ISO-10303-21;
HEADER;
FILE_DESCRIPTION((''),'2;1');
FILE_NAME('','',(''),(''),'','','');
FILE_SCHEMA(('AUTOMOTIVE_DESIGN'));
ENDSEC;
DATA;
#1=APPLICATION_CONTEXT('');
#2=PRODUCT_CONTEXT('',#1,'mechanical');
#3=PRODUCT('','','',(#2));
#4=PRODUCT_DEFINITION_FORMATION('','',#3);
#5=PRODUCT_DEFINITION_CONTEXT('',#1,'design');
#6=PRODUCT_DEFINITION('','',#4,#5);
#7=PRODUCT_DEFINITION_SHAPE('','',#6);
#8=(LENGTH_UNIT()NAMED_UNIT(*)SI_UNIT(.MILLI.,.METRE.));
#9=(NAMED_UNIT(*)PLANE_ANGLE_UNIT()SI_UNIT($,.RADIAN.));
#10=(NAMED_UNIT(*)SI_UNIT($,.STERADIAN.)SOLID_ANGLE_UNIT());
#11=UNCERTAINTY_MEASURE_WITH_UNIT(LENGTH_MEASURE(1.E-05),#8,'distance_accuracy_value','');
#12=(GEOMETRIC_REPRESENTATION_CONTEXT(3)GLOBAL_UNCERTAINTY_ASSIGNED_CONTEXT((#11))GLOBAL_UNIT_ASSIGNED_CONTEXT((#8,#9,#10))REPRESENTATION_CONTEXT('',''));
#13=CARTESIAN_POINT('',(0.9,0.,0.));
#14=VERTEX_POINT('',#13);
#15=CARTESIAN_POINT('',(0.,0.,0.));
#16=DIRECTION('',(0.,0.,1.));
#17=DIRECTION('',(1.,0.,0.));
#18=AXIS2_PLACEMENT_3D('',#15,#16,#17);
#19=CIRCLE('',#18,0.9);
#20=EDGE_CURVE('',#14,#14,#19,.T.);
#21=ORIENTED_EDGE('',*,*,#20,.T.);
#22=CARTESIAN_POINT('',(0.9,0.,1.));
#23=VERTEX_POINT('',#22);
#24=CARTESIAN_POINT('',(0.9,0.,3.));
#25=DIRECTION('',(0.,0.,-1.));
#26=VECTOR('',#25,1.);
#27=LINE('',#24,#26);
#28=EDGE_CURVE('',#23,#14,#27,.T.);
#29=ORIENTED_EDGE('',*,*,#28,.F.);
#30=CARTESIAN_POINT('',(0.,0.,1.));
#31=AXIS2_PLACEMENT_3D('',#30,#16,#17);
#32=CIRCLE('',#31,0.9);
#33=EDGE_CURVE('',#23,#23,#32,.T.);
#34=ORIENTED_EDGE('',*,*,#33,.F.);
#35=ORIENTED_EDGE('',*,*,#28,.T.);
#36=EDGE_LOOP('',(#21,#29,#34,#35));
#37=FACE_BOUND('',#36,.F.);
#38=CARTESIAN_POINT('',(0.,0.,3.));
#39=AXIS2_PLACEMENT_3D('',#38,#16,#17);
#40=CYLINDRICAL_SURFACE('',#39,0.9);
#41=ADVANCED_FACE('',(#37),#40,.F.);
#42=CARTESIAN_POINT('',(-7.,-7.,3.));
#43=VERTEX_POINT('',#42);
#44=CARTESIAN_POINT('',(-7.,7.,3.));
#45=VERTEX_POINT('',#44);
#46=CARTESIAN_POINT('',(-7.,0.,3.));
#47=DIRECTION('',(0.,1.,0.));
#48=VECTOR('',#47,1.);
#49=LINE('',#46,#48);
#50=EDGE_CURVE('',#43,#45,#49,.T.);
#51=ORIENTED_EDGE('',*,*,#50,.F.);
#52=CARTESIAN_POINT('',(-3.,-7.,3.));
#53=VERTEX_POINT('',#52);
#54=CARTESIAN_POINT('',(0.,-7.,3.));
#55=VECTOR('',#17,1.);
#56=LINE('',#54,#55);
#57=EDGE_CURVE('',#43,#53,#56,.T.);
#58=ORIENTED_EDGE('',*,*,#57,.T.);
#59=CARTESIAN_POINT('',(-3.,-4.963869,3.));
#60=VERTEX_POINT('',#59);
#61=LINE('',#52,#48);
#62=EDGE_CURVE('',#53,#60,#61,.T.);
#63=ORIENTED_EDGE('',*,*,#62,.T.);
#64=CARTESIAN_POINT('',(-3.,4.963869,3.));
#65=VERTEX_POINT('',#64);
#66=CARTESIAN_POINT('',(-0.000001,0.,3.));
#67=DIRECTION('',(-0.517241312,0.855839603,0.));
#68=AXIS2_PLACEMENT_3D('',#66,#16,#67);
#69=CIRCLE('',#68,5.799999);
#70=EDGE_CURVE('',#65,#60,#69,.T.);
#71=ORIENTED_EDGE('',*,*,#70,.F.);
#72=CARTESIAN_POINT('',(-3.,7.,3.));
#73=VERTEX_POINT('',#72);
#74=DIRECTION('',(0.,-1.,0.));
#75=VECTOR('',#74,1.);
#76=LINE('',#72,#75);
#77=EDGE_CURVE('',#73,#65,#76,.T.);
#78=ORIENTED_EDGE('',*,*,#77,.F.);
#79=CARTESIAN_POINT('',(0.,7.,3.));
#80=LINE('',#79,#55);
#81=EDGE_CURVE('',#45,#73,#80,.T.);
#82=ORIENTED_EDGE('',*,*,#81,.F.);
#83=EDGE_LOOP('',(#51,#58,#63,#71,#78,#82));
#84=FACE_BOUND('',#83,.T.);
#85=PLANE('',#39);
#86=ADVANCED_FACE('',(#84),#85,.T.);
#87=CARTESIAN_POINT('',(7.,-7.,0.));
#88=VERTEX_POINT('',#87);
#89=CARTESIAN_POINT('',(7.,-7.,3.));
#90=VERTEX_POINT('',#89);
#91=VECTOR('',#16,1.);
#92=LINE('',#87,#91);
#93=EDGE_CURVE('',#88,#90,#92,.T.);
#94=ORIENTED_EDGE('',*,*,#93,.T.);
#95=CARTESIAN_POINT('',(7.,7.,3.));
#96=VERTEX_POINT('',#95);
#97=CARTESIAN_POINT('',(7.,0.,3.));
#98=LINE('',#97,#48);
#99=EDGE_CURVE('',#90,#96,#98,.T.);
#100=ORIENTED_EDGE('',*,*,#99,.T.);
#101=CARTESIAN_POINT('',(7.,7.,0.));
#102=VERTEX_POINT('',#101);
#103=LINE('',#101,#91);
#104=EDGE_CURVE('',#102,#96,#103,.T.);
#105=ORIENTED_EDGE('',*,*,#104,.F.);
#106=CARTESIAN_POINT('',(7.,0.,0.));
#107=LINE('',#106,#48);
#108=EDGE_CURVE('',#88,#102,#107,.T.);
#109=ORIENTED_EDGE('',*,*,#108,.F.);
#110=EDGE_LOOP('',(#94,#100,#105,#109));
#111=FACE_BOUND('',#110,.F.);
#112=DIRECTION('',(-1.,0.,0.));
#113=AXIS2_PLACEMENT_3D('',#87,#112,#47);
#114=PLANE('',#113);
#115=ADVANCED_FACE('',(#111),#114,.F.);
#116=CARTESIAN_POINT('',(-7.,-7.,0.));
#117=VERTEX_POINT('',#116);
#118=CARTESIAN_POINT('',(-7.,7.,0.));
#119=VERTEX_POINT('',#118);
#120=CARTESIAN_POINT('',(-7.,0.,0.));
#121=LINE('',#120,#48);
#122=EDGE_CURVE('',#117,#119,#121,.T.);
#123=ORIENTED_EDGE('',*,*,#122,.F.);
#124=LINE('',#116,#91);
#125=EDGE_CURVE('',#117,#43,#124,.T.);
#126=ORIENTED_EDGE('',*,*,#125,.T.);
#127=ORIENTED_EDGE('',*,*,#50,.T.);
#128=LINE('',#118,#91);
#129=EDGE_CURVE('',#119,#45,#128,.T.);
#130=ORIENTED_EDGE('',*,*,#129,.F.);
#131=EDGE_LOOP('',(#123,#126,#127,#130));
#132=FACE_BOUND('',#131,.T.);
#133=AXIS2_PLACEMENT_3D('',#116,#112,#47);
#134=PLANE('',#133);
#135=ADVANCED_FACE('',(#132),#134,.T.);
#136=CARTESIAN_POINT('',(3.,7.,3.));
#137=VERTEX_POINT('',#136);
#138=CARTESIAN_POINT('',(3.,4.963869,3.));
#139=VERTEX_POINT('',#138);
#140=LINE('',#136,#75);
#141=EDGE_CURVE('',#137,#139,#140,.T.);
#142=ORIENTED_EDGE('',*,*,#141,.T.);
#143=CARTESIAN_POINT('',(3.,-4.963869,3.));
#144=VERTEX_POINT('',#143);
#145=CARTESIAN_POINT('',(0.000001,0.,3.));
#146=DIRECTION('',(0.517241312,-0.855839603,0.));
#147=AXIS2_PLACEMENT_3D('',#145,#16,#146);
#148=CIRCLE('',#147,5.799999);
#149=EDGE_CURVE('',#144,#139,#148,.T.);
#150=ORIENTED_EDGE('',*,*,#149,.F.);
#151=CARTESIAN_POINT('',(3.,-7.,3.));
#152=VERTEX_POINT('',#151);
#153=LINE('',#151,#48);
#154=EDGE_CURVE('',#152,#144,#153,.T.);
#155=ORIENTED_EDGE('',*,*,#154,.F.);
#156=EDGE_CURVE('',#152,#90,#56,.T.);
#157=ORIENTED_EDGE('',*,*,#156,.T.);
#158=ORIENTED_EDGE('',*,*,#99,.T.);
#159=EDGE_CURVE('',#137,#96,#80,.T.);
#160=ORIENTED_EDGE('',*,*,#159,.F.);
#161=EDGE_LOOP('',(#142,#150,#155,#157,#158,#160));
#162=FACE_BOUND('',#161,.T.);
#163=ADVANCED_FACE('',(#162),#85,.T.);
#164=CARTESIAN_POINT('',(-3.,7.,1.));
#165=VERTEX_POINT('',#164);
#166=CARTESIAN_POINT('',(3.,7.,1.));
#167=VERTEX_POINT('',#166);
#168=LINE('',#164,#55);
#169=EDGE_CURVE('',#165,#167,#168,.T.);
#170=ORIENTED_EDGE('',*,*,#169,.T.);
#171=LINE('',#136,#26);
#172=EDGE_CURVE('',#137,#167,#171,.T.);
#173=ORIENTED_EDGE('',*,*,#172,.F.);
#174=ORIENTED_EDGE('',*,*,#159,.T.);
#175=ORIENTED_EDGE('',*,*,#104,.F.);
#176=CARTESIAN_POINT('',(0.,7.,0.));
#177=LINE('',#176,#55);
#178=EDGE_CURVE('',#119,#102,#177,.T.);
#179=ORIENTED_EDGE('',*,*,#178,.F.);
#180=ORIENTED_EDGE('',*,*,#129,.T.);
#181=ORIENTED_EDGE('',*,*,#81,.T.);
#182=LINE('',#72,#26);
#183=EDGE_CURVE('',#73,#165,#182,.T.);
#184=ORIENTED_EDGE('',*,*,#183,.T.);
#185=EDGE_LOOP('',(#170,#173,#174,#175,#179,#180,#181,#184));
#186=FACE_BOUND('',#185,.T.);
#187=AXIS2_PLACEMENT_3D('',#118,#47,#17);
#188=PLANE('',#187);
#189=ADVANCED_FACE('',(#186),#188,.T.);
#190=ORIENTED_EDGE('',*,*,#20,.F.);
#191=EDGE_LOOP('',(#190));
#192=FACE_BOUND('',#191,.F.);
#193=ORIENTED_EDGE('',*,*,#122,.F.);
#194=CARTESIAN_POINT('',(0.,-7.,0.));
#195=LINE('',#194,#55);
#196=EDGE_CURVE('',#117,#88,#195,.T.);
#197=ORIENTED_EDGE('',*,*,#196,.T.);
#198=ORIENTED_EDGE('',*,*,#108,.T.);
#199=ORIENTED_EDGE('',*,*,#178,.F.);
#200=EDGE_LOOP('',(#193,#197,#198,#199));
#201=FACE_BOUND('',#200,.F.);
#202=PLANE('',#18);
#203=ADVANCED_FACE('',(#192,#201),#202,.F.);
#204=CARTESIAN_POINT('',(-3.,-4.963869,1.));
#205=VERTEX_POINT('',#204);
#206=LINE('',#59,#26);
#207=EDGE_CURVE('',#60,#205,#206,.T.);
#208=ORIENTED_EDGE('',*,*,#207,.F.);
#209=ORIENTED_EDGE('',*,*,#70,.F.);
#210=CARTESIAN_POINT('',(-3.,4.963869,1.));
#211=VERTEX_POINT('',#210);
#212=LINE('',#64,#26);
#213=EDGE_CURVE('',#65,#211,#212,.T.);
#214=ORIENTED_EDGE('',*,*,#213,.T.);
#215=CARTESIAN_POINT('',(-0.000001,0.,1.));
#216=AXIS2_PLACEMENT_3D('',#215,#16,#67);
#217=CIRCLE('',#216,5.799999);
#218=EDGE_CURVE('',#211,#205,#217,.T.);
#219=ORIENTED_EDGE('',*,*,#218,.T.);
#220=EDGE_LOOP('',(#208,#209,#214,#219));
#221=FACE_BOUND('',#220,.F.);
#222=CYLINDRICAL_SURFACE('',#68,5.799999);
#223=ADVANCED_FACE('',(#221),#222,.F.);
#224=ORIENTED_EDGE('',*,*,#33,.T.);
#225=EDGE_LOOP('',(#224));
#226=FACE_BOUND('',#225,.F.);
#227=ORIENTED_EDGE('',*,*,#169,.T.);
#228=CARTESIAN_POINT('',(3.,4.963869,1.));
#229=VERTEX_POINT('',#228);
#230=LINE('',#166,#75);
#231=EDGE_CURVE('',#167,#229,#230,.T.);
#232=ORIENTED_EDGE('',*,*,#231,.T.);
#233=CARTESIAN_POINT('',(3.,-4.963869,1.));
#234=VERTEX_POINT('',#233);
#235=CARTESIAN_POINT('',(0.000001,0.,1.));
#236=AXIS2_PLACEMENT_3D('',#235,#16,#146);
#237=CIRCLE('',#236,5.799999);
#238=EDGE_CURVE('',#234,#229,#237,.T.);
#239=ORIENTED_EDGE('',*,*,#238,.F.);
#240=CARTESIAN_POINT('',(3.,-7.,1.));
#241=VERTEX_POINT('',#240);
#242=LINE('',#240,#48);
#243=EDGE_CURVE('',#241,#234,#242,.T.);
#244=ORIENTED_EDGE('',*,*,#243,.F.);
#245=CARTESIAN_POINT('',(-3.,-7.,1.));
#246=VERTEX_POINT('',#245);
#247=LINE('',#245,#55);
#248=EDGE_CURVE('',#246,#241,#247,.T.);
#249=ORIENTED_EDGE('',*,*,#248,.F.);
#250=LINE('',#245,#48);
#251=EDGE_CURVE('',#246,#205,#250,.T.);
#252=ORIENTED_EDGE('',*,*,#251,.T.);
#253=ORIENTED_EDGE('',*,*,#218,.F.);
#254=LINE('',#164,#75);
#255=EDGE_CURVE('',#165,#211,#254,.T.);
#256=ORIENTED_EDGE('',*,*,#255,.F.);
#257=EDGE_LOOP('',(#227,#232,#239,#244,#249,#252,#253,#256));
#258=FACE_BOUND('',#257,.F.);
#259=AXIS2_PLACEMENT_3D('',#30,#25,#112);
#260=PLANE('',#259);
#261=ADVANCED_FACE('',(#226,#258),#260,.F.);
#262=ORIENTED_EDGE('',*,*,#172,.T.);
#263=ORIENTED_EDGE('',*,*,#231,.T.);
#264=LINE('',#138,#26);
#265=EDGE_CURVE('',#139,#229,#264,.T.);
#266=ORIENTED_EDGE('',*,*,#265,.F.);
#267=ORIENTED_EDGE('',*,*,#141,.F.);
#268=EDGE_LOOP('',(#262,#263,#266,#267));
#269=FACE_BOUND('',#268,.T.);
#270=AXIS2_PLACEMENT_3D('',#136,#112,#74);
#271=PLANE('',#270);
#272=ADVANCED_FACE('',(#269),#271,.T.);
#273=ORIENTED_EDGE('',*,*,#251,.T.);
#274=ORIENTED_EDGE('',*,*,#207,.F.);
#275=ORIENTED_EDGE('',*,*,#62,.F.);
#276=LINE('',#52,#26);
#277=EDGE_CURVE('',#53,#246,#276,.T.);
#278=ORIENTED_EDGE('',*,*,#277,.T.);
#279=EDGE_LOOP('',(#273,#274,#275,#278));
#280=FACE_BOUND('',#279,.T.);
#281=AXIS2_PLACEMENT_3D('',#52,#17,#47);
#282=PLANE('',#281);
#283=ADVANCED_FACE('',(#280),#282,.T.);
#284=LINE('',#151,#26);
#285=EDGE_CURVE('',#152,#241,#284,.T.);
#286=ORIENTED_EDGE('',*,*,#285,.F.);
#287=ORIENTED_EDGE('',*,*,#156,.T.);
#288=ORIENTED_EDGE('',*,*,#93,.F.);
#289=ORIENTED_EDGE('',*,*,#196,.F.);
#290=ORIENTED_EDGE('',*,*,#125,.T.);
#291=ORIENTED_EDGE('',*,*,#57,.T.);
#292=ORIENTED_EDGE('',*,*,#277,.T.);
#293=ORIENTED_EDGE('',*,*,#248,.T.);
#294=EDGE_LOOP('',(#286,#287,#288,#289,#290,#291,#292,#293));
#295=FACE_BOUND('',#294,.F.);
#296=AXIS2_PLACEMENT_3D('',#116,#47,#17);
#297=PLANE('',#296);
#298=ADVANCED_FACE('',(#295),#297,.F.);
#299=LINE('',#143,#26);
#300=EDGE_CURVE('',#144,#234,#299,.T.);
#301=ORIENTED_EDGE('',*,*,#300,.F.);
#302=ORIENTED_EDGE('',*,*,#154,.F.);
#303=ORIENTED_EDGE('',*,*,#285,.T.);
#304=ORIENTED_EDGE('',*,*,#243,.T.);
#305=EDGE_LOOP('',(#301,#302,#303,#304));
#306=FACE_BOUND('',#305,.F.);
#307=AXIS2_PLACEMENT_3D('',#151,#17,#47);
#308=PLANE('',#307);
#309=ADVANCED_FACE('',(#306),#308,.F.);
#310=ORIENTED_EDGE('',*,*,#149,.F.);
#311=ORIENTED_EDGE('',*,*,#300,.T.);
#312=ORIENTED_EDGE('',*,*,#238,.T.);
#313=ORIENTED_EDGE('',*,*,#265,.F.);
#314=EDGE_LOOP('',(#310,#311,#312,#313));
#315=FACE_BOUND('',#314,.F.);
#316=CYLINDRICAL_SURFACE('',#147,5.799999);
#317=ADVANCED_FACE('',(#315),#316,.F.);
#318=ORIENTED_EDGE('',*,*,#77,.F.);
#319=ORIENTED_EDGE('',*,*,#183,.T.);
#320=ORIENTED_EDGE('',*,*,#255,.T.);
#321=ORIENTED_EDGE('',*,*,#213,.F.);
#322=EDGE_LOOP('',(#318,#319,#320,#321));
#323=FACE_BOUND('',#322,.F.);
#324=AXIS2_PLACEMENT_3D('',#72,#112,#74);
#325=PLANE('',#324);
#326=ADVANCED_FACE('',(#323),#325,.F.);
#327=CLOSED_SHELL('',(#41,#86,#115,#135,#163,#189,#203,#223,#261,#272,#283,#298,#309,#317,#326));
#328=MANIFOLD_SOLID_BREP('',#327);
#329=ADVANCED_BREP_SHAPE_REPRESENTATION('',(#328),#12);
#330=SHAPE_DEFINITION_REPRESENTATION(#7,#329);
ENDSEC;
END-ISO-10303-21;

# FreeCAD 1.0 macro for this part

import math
import FreeCAD as App
import Part
import Sketcher
from FreeCAD import Vector

doc = App.newDocument("Part")
body = doc.addObject("PartDesign::Body", "Body")

# Sketch on XY plane
sketch1 = body.newObject("Sketcher::SketchObject", "Sketch")
sketch1.AttachmentSupport = (doc.getObject("XY_Plane"), [""])
sketch1.MapMode = "FlatFace"
sketch1.addGeometry([
    Part.LineSegment(Vector(-7, 7, 0), Vector(-7, -7, 0)),
    Part.LineSegment(Vector(-7, -7, 0), Vector(7, -7, 0)),
    Part.LineSegment(Vector(7, -7, 0), Vector(7, 7, 0)),
    Part.LineSegment(Vector(7, 7, 0), Vector(-7, 7, 0)),
], False)
sketch1.addConstraint([
    Sketcher.Constraint("Coincident", 0, 2, 1, 1),
    Sketcher.Constraint("Coincident", 1, 2, 2, 1),
    Sketcher.Constraint("Coincident", 2, 2, 3, 1),
    Sketcher.Constraint("Coincident", 3, 2, 0, 1),
    Sketcher.Constraint("Vertical", 0),
    Sketcher.Constraint("Horizontal", 1),
    Sketcher.Constraint("Vertical", 2),
    Sketcher.Constraint("Horizontal", 3),
    Sketcher.Constraint("Symmetric", 0, 2, 2, 2, -1, 1),
    Sketcher.Constraint("Equal", 3, 0),
    Sketcher.Constraint("DistanceX", 1, 1, 1, 2, 14.0),
])
pad1 = body.newObject("PartDesign::Pad", "Pad")
pad1.Profile = sketch1
pad1.Length = 3

# Sketch on XY plane
sketch2 = body.newObject("Sketcher::SketchObject", "Sketch001")
sketch2.AttachmentSupport = (doc.getObject("XY_Plane"), [""])
sketch2.MapMode = "FlatFace"
sketch2.AttachmentOffset = App.Placement(Vector(0, 0, 3), App.Rotation())
sketch2.addGeometry(Part.Circle(Vector(0, 0, 0), Vector(0, 0, 1), 0.9), False)
sketch2.addConstraint([
    Sketcher.Constraint("Coincident", 0, 3, -1, 1),
    Sketcher.Constraint("Diameter", 0, 1.8),
])
pocket1 = body.newObject("PartDesign::Pocket", "Pocket")
pocket1.Profile = sketch2
pocket1.Length = 5

# Sketch on XY plane
sketch3 = body.newObject("Sketcher::SketchObject", "Sketch002")
sketch3.AttachmentSupport = (doc.getObject("XY_Plane"), [""])
sketch3.MapMode = "FlatFace"
sketch3.AttachmentOffset = App.Placement(Vector(0, 0, 3), App.Rotation())
sketch3.addGeometry([
    Part.LineSegment(Vector(3, 7, 0), Vector(-3, 7, 0)),  # 0
    Part.LineSegment(Vector(-3, 7, 0), Vector(-3, 5, 0)),  # 1
    Part.ArcOfCircle(Part.Circle(Vector(0, 0, 0), Vector(0, 0, 1), 5.8), math.radians(121), math.radians(239)),  # 2
    Part.LineSegment(Vector(-3, -5, 0), Vector(-3, -7, 0)),  # 3
    Part.LineSegment(Vector(-3, -7, 0), Vector(3, -7, 0)),  # 4
    Part.LineSegment(Vector(3, -7, 0), Vector(3, -5, 0)),  # 5
    Part.ArcOfCircle(Part.Circle(Vector(0, 0, 0), Vector(0, 0, 1), 5.8), math.radians(-59), math.radians(59)),  # 6
    Part.LineSegment(Vector(3, 5, 0), Vector(3, 7, 0)),  # 7
], False)
sketch3.addConstraint([
    Sketcher.Constraint("Coincident", 0, 2, 1, 1),
    Sketcher.Constraint("Coincident", 1, 2, 2, 1),
    Sketcher.Constraint("Coincident", 2, 2, 3, 1),
    Sketcher.Constraint("Coincident", 3, 2, 4, 1),
    Sketcher.Constraint("Coincident", 4, 2, 5, 1),
    Sketcher.Constraint("Coincident", 5, 2, 6, 1),
    Sketcher.Constraint("Coincident", 6, 2, 7, 1),
    Sketcher.Constraint("Coincident", 7, 2, 0, 1),
    Sketcher.Constraint("Horizontal", 0),
    Sketcher.Constraint("Vertical", 1),
    Sketcher.Constraint("Vertical", 3),
    Sketcher.Constraint("Horizontal", 4),
    Sketcher.Constraint("Vertical", 5),
    Sketcher.Constraint("Vertical", 7),
    Sketcher.Constraint("Coincident", 2, 3, -1, 1),
    Sketcher.Constraint("Coincident", 6, 3, -1, 1),
    Sketcher.Constraint("Equal", 2, 6),
    Sketcher.Constraint("Symmetric", 0, 2, 4, 2, -1, 1),
    Sketcher.Constraint("Horizontal", 2, 2, 5, 2),
    Sketcher.Constraint("Horizontal", 1, 2, 6, 2),
    Sketcher.Constraint("Radius", 2, 5.799999),
    Sketcher.Constraint("DistanceX", 0, 2, 0, 1, 6.0),
    Sketcher.Constraint("DistanceY", -1, 1, 0, 2, 7.0),
])
pocket2 = body.newObject("PartDesign::Pocket", "Pocket001")
pocket2.Profile = sketch3
pocket2.Length = 2

doc.recompute()
